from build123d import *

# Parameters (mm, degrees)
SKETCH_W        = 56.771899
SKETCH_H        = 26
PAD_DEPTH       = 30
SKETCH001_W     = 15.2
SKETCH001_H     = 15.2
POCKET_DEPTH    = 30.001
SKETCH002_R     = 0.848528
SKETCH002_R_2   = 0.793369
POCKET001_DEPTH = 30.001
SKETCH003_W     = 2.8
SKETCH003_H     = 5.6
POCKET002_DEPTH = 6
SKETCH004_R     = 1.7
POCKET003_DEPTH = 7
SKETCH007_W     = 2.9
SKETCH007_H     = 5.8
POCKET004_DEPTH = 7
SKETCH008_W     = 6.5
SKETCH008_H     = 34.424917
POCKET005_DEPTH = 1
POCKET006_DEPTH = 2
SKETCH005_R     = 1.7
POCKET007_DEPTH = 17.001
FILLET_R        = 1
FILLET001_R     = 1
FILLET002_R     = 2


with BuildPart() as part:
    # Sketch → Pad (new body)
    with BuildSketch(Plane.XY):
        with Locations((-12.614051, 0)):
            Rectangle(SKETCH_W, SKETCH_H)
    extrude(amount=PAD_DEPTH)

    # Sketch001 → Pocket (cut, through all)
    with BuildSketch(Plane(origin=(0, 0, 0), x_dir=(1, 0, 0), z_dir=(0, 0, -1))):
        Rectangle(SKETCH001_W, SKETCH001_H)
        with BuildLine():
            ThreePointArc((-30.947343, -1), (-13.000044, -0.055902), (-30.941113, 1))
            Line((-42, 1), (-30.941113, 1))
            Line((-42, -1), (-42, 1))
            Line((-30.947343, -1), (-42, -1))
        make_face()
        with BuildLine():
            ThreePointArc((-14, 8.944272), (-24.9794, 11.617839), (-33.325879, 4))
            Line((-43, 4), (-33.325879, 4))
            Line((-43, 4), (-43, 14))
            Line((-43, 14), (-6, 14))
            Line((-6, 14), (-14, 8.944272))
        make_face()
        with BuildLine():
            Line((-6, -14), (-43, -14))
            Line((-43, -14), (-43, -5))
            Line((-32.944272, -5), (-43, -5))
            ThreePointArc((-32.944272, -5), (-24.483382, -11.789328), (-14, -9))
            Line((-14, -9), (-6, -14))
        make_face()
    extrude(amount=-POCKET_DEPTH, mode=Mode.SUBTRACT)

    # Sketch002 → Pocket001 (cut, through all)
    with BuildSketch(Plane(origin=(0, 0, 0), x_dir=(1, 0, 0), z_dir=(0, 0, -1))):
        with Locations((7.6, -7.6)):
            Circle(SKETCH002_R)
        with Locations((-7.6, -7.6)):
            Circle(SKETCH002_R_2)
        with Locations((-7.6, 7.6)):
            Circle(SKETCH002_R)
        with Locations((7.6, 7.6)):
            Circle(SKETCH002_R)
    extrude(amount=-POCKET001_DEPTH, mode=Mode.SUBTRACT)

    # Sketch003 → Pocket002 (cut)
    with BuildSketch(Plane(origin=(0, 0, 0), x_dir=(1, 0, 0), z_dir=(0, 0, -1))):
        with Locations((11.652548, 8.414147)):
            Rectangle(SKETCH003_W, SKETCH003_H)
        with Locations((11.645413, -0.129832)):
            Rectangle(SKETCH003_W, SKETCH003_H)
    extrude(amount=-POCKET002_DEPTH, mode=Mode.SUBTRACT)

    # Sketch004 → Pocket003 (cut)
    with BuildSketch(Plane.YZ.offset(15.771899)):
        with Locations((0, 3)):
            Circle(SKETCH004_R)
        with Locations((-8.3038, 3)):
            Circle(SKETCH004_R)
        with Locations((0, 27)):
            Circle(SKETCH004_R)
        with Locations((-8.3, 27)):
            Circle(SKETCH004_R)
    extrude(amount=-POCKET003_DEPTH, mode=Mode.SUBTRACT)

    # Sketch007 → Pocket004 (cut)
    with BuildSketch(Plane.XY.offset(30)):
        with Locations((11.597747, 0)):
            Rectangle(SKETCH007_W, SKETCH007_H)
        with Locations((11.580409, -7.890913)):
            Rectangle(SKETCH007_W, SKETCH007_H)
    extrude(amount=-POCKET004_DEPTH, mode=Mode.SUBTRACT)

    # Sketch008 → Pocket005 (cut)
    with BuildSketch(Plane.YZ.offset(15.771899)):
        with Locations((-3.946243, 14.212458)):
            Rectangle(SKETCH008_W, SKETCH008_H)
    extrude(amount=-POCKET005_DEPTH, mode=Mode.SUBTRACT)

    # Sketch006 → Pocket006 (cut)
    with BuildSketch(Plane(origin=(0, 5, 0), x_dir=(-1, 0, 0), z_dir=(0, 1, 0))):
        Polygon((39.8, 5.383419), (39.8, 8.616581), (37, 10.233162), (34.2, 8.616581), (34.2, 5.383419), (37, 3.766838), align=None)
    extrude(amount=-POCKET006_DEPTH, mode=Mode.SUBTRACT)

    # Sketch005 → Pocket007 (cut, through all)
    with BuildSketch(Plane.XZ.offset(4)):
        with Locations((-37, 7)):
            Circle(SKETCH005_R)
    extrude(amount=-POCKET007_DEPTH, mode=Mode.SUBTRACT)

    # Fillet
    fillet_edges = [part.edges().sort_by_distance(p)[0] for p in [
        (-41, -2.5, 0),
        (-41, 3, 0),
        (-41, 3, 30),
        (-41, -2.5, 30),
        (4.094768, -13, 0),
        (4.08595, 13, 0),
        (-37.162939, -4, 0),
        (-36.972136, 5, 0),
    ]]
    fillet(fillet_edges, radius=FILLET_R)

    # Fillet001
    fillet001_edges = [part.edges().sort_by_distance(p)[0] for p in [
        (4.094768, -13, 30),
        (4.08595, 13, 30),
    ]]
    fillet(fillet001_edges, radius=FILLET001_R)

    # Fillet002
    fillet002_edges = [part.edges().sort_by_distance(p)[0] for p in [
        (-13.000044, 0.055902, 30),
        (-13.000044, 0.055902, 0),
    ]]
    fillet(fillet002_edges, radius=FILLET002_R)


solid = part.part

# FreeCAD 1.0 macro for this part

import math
import FreeCAD as App
import Part
import Sketcher
Q = App.Units.Quantity


def edges_at(feature, points):
    """Names of the edges that pass closest to the given points."""
    edges = feature.Shape.Edges
    near = lambda p: min(range(len(edges)), key=lambda i: edges[i].distToShape(Part.Vertex(*p))[0])
    return sorted({f"Edge{near(p) + 1}" for p in points})


def add_polygon(sketch, points):
    """Adds a closed chain of lines whose ends are joined by coincident constraints."""
    first, n = sketch.GeometryCount, len(points)
    for a, b in zip(points, points[1:] + points[:1]):
        sketch.addGeometry(Part.LineSegment(App.Vector(*a, 0), App.Vector(*b, 0)), False)
    for i in range(n):
        sketch.addConstraint(Sketcher.Constraint("Coincident", first + i, 2, first + (i + 1) % n, 1))

doc = App.newDocument("Part")
params = doc.addObject("Spreadsheet::Sheet", "Params")
for row, (alias, value) in enumerate([
    ("sketch1_height", "26 mm"),
    ("pad1_length", "30 mm"),
    ("sketch2_radius", "9 mm"),
    ("sketch2_width", "37 mm"),
    ("sketch2_height", "2 mm"),
    ("sketch2_height2", "10 mm"),
    ("sketch2_height3", "9 mm"),
    ("sketch4_width", "2.8 mm"),
    ("sketch4_height", "5.6 mm"),
    ("pocket3_length", "6 mm"),
    ("sketch5_diameter", "3.4 mm"),
    ("pocket4_length", "7 mm"),
    ("sketch6_width", "2.9 mm"),
    ("sketch6_height", "5.8 mm"),
    ("pocket5_length", "7 mm"),
    ("sketch7_width", "6.5 mm"),
    ("pocket6_length", "1 mm"),
    ("pocket7_length", "2 mm"),
    ("sketch9_diameter", "3.4 mm"),
    ("fillet_radius", "1 mm"),
    ("fillet2_radius", "1 mm"),
    ("fillet3_radius", "2 mm"),
], start=1):
    params.set(f"A{row}", alias)
    params.set(f"B{row}", "=" + value)
    params.setAlias(f"B{row}", alias)

body = doc.addObject("PartDesign::Body", "Body")

sketch1 = doc.addObject("Sketcher::SketchObject", "Sketch")
body.addObject(sketch1)
sketch1.AttachmentSupport = (doc.XY_Plane, [""])
sketch1.MapMode = "FlatFace"
add_polygon(sketch1, [(-41, 13), (-41, -13), (15.771899, -13), (15.771899, 13)])
sketch1.addConstraint([
    Sketcher.Constraint("Vertical", 0),
    Sketcher.Constraint("Horizontal", 1),
    Sketcher.Constraint("Vertical", 2),
    Sketcher.Constraint("Horizontal", 3),
    Sketcher.Constraint("DistanceY", 0, 2, 0, 1, 26.0),
    Sketcher.Constraint("DistanceX", 0, 2, -1, 1, 41.0),
    Sketcher.Constraint("DistanceY", 0, 2, -1, 1, 13.0),
    Sketcher.Constraint("DistanceX", 1, 1, 1, 2, 56.771899),
])
sketch1.setExpression("Constraints[8]", "Params.sketch1_height")
pad1 = doc.addObject("PartDesign::Pad", "Pad")
body.addObject(pad1)
pad1.Profile = sketch1
pad1.setExpression("Length", "Params.pad1_length")

sketch2 = doc.addObject("Sketcher::SketchObject", "Sketch001")
body.addObject(sketch2)
sketch2.AttachmentSupport = (doc.XY_Plane, [""])
sketch2.MapMode = "FlatFace"
add_polygon(sketch2, [(-7.6, -7.6), (-7.6, 7.6), (7.6, 7.6), (7.6, -7.6)])
sketch2.addGeometry(Part.ArcOfCircle(Part.Circle(App.Vector(-22, 0.027861, 0), App.Vector(0, 0, 1), 9), math.radians(-173.442123), math.radians(173.799074)), False)
sketch2.addGeometry(Part.LineSegment(App.Vector(-30.941113, -1, 0), App.Vector(-42, -1, 0)), False)
sketch2.addGeometry(Part.LineSegment(App.Vector(-42, -1, 0), App.Vector(-42, 1, 0)), False)
sketch2.addGeometry(Part.LineSegment(App.Vector(-42, 1, 0), App.Vector(-30.947343, 1, 0)), False)
sketch2.addGeometry(Part.ArcOfCircle(Part.Circle(App.Vector(-22, 0.027864, 0), App.Vector(0, 0, 1), 12.020783), math.radians(-160.4229), math.radians(-48.278226)), False)
sketch2.addGeometry(Part.LineSegment(App.Vector(-14, -8.944272, 0), App.Vector(-6, -14, 0)), False)
sketch2.addGeometry(Part.LineSegment(App.Vector(-6, -14, 0), App.Vector(-43, -14, 0)), False)
sketch2.addGeometry(Part.LineSegment(App.Vector(-43, -14, 0), App.Vector(-43, -4, 0)), False)
sketch2.addGeometry(Part.LineSegment(App.Vector(-43, -4, 0), App.Vector(-33.325879, -4, 0)), False)
sketch2.addGeometry(Part.LineSegment(App.Vector(-43, 14, 0), App.Vector(-6, 14, 0)), False)
sketch2.addGeometry(Part.LineSegment(App.Vector(-6, 14, 0), App.Vector(-14, 9, 0)), False)
sketch2.addGeometry(Part.ArcOfCircle(Part.Circle(App.Vector(-22, 0.027864, 0), App.Vector(0, 0, 1), 12.020783), math.radians(48.278227), math.radians(155.567035)), False)
sketch2.addGeometry(Part.LineSegment(App.Vector(-32.944272, 5, 0), App.Vector(-43, 5, 0)), False)
sketch2.addGeometry(Part.LineSegment(App.Vector(-43, 5, 0), App.Vector(-43, 14, 0)), False)
sketch2.addConstraint([
    Sketcher.Constraint("Coincident", 4, 1, 5, 1),
    Sketcher.Constraint("Coincident", 5, 2, 6, 1),
    Sketcher.Constraint("Coincident", 6, 2, 7, 1),
    Sketcher.Constraint("Coincident", 7, 2, 4, 2),
    Sketcher.Constraint("Coincident", 8, 2, 9, 1),
    Sketcher.Constraint("Coincident", 9, 2, 10, 1),
    Sketcher.Constraint("Coincident", 10, 2, 11, 1),
    Sketcher.Constraint("Coincident", 11, 2, 12, 1),
    Sketcher.Constraint("Coincident", 12, 2, 8, 1),
    Sketcher.Constraint("Coincident", 13, 2, 14, 1),
    Sketcher.Constraint("Coincident", 14, 2, 15, 1),
    Sketcher.Constraint("Coincident", 15, 2, 16, 1),
    Sketcher.Constraint("Coincident", 16, 2, 17, 1),
    Sketcher.Constraint("Coincident", 17, 2, 13, 1),
    Sketcher.Constraint("Vertical", 0),
    Sketcher.Constraint("Horizontal", 1),
    Sketcher.Constraint("Vertical", 2),
    Sketcher.Constraint("Horizontal", 3),
    Sketcher.Constraint("Horizontal", 5),
    Sketcher.Constraint("Vertical", 6),
    Sketcher.Constraint("Horizontal", 7),
    Sketcher.Constraint("Horizontal", 10),
    Sketcher.Constraint("Vertical", 11),
    Sketcher.Constraint("Horizontal", 12),
    Sketcher.Constraint("Horizontal", 13),
    Sketcher.Constraint("Horizontal", 16),
    Sketcher.Constraint("Vertical", 17),
    Sketcher.Constraint("Coincident", 8, 3, 4, 3),
    Sketcher.Constraint("Coincident", 15, 3, 4, 3),
    Sketcher.Constraint("Equal", 8, 15),
    Sketcher.Constraint("Symmetric", 0, 2, 2, 2, -1, 1),
    Sketcher.Constraint("Symmetric", 9, 2, 13, 2, -1),
    Sketcher.Constraint("Vertical", 8, 2, 14, 2),
    Sketcher.Constraint("Vertical", 11, 2, 16, 2),
    Sketcher.Constraint("Equal", 3, 0),
    Sketcher.Constraint("Radius", 4, 9.0),
    Sketcher.Constraint("DistanceX", 10, 2, 10, 1, 37.0),
    Sketcher.Constraint("DistanceY", 6, 1, 6, 2, 2.0),
    Sketcher.Constraint("DistanceY", 11, 1, 11, 2, 10.0),
    Sketcher.Constraint("DistanceY", 17, 1, 17, 2, 9.0),
    Sketcher.Constraint("DistanceX", 1, 1, 1, 2, 15.2),
    Sketcher.Constraint("DistanceX", 4, 3, -1, 1, 22.0),
    Sketcher.Constraint("DistanceY", 4, 1, -1, 1, 1.0),
    Sketcher.Constraint("DistanceX", 5, 2, -1, 1, 42.0),
    Sketcher.Constraint("DistanceX", 8, 2, -1, 1, 14.0),
    Sketcher.Constraint("DistanceX", 9, 2, -1, 1, 6.0),
    Sketcher.Constraint("DistanceY", 9, 2, -1, 1, 14.0),
    Sketcher.Constraint("DistanceY", -1, 1, 14, 2, 9.0),
    Sketcher.Constraint("Radius", 8, 12.020783),
])
sketch2.setExpression("Constraints[39]", "Params.sketch2_radius")
sketch2.setExpression("Constraints[40]", "Params.sketch2_width")
sketch2.setExpression("Constraints[41]", "Params.sketch2_height")
sketch2.setExpression("Constraints[42]", "Params.sketch2_height2")
sketch2.setExpression("Constraints[43]", "Params.sketch2_height3")
pocket1 = doc.addObject("PartDesign::Pocket", "Pocket")
body.addObject(pocket1)
pocket1.Profile = sketch2
pocket1.Type = "ThroughAll"
pocket1.Reversed = True

sketch3 = doc.addObject("Sketcher::SketchObject", "Sketch002")
body.addObject(sketch3)
sketch3.AttachmentSupport = (doc.XY_Plane, [""])
sketch3.MapMode = "FlatFace"
sketch3.addGeometry([
    Part.Circle(App.Vector(7.6, 7.6, 0), App.Vector(0, 0, 1), 0.848528),
    Part.Circle(App.Vector(-7.6, 7.6, 0), App.Vector(0, 0, 1), 0.793369),
    Part.Circle(App.Vector(-7.6, -7.6, 0), App.Vector(0, 0, 1), 0.848528),
    Part.Circle(App.Vector(7.6, -7.6, 0), App.Vector(0, 0, 1), 0.848528),
], False)
sketch3.addConstraint([
    Sketcher.Constraint("Equal", 0, 2),
    Sketcher.Constraint("Equal", 2, 3),
    Sketcher.Constraint("Symmetric", 0, 3, 2, 3, -1, 1),
    Sketcher.Constraint("Symmetric", 1, 3, 3, 3, -1, 1),
    Sketcher.Constraint("Symmetric", 0, 3, 1, 3, -2),
    Sketcher.Constraint("DistanceX", -1, 1, 0, 3, 7.6),
    Sketcher.Constraint("DistanceY", -1, 1, 0, 3, 7.6),
    Sketcher.Constraint("Diameter", 0, 1.697056),
    Sketcher.Constraint("Diameter", 1, 1.586738),
])
pocket2 = doc.addObject("PartDesign::Pocket", "Pocket001")
body.addObject(pocket2)
pocket2.Profile = sketch3
pocket2.Type = "ThroughAll"
pocket2.Reversed = True

sketch4 = doc.addObject("Sketcher::SketchObject", "Sketch003")
body.addObject(sketch4)
sketch4.AttachmentSupport = (doc.XY_Plane, [""])
sketch4.MapMode = "FlatFace"
add_polygon(sketch4, [(10.252548, -11.214147), (10.252548, -5.614147), (13.052548, -5.614147), (13.052548, -11.214147)])
add_polygon(sketch4, [(10.245413, -2.670168), (10.245413, 2.929832), (13.045413, 2.929832), (13.045413, -2.670168)])
sketch4.addConstraint([
    Sketcher.Constraint("Vertical", 0),
    Sketcher.Constraint("Horizontal", 1),
    Sketcher.Constraint("Vertical", 2),
    Sketcher.Constraint("Horizontal", 3),
    Sketcher.Constraint("Vertical", 4),
    Sketcher.Constraint("Horizontal", 5),
    Sketcher.Constraint("Vertical", 6),
    Sketcher.Constraint("Horizontal", 7),
    Sketcher.Constraint("Equal", 3, 5),
    Sketcher.Constraint("Equal", 2, 4),
    Sketcher.Constraint("DistanceX", 1, 1, 1, 2, 2.8),
    Sketcher.Constraint("DistanceY", 0, 1, 0, 2, 5.6),
    Sketcher.Constraint("DistanceX", -1, 1, 0, 2, 10.252548),
    Sketcher.Constraint("DistanceY", 0, 2, 4, 2, 8.543979),
    Sketcher.Constraint("DistanceY", 0, 2, -1, 1, 5.614147),
    Sketcher.Constraint("DistanceX", -1, 1, 4, 2, 10.245413),
])
sketch4.setExpression("Constraints[18]", "Params.sketch4_width")
sketch4.setExpression("Constraints[19]", "Params.sketch4_height")
pocket3 = doc.addObject("PartDesign::Pocket", "Pocket002")
body.addObject(pocket3)
pocket3.Profile = sketch4
pocket3.setExpression("Length", "Params.pocket3_length")
pocket3.Reversed = True

sketch5 = doc.addObject("Sketcher::SketchObject", "Sketch004")
body.addObject(sketch5)
sketch5.AttachmentSupport = (doc.YZ_Plane, [""])
sketch5.MapMode = "FlatFace"
sketch5.AttachmentOffset = App.Placement(App.Vector(0, 0, 15.771899), App.Rotation())
sketch5.addGeometry([
    Part.Circle(App.Vector(0, 3, 0), App.Vector(0, 0, 1), 1.7),
    Part.Circle(App.Vector(-8.3038, 3, 0), App.Vector(0, 0, 1), 1.7),
    Part.Circle(App.Vector(0, 27, 0), App.Vector(0, 0, 1), 1.7),
    Part.Circle(App.Vector(-8.3, 27, 0), App.Vector(0, 0, 1), 1.7),
], False)
sketch5.addConstraint([
    Sketcher.Constraint("Equal", 0, 1),
    Sketcher.Constraint("Equal", 1, 2),
    Sketcher.Constraint("Equal", 2, 3),
    Sketcher.Constraint("PointOnObject", 0, 3, -2),
    Sketcher.Constraint("PointOnObject", 2, 3, -2),
    Sketcher.Constraint("Horizontal", 0, 3, 1, 3),
    Sketcher.Constraint("Horizontal", 2, 3, 3, 3),
    Sketcher.Constraint("Diameter", 0, 3.4),
    Sketcher.Constraint("DistanceY", -1, 1, 0, 3, 3.0),
    Sketcher.Constraint("DistanceY", -1, 1, 2, 3, 27.0),
    Sketcher.Constraint("DistanceX", 3, 3, -1, 1, 8.3),
    Sketcher.Constraint("DistanceX", 1, 3, -1, 1, 8.3038),
])
sketch5.setExpression("Constraints[7]", "Params.sketch5_diameter")
pocket4 = doc.addObject("PartDesign::Pocket", "Pocket003")
body.addObject(pocket4)
pocket4.Profile = sketch5
pocket4.setExpression("Length", "Params.pocket4_length")

sketch6 = doc.addObject("Sketcher::SketchObject", "Sketch005")
body.addObject(sketch6)
sketch6.AttachmentSupport = (doc.XY_Plane, [""])
sketch6.MapMode = "FlatFace"
sketch6.AttachmentOffset = App.Placement(App.Vector(0, 0, 30), App.Rotation())
add_polygon(sketch6, [(10.147747, 2.9), (10.147747, -2.9), (13.047747, -2.9), (13.047747, 2.9)])
add_polygon(sketch6, [(10.130409, -4.990913), (10.130409, -10.790913), (13.030409, -10.790913), (13.030409, -4.990913)])
sketch6.addConstraint([
    Sketcher.Constraint("Vertical", 0),
    Sketcher.Constraint("Horizontal", 1),
    Sketcher.Constraint("Vertical", 2),
    Sketcher.Constraint("Horizontal", 3),
    Sketcher.Constraint("Vertical", 4),
    Sketcher.Constraint("Horizontal", 5),
    Sketcher.Constraint("Vertical", 6),
    Sketcher.Constraint("Horizontal", 7),
    Sketcher.Constraint("Equal", 3, 5),
    Sketcher.Constraint("Equal", 2, 4),
    Sketcher.Constraint("DistanceX", 1, 1, 1, 2, 2.9),
    Sketcher.Constraint("DistanceY", 0, 2, 0, 1, 5.8),
    Sketcher.Constraint("DistanceY", 0, 2, -1, 1, 2.9),
    Sketcher.Constraint("DistanceX", -1, 1, 4, 2, 10.130409),
    Sketcher.Constraint("DistanceX", 4, 2, 0, 2, 0.017338),
    Sketcher.Constraint("DistanceY", 4, 2, -1, 1, 10.790913),
])
sketch6.setExpression("Constraints[18]", "Params.sketch6_width")
sketch6.setExpression("Constraints[19]", "Params.sketch6_height")
pocket5 = doc.addObject("PartDesign::Pocket", "Pocket004")
body.addObject(pocket5)
pocket5.Profile = sketch6
pocket5.setExpression("Length", "Params.pocket5_length")

sketch7 = doc.addObject("Sketcher::SketchObject", "Sketch006")
body.addObject(sketch7)
sketch7.AttachmentSupport = (doc.YZ_Plane, [""])
sketch7.MapMode = "FlatFace"
sketch7.AttachmentOffset = App.Placement(App.Vector(0, 0, 15.771899), App.Rotation())
add_polygon(sketch7, [(-7.196243, 31.424916), (-7.196243, -3.000001), (-0.696243, -3.000001), (-0.696243, 31.424916)])
sketch7.addConstraint([
    Sketcher.Constraint("Vertical", 0),
    Sketcher.Constraint("Horizontal", 1),
    Sketcher.Constraint("Vertical", 2),
    Sketcher.Constraint("Horizontal", 3),
    Sketcher.Constraint("DistanceX", 1, 1, 1, 2, 6.5),
    Sketcher.Constraint("DistanceY", 0, 2, -1, 1, 3.000001),
    Sketcher.Constraint("DistanceY", 0, 2, 0, 1, 34.424917),
    Sketcher.Constraint("DistanceX", 0, 2, -1, 1, 7.196243),
])
sketch7.setExpression("Constraints[8]", "Params.sketch7_width")
pocket6 = doc.addObject("PartDesign::Pocket", "Pocket005")
body.addObject(pocket6)
pocket6.Profile = sketch7
pocket6.setExpression("Length", "Params.pocket6_length")

sketch8 = doc.addObject("Sketcher::SketchObject", "Sketch007")
body.addObject(sketch8)
sketch8.AttachmentSupport = (doc.XZ_Plane, [""])
sketch8.MapMode = "FlatFace"
sketch8.AttachmentOffset = App.Placement(App.Vector(0, 0, -5), App.Rotation())
add_polygon(sketch8, [(-39.8, 5.383419), (-39.8, 8.616581), (-37, 10.233162), (-34.2, 8.616581), (-34.2, 5.383419), (-37, 3.766838)])
sketch8.addConstraint([
    Sketcher.Constraint("Vertical", 0),
    Sketcher.Constraint("Vertical", 3),
    Sketcher.Constraint("Parallel", 1, 4),
    Sketcher.Constraint("Parallel", 2, 5),
    Sketcher.Constraint("Horizontal", 0, 2, 2, 2),
    Sketcher.Constraint("Horizontal", 3, 2, 5, 2),
    Sketcher.Constraint("Vertical", 1, 2, 4, 2),
    Sketcher.Constraint("Angle", 1, Q("30.000004 deg")),
    Sketcher.Constraint("DistanceX", 1, 2, -1, 1, 37.0),
    Sketcher.Constraint("DistanceX", 0, 2, -1, 1, 39.8),
    Sketcher.Constraint("DistanceY", 0, 1, 0, 2, 3.233162),
    Sketcher.Constraint("DistanceY", -1, 1, 0, 2, 8.616581),
])
pocket7 = doc.addObject("PartDesign::Pocket", "Pocket006")
body.addObject(pocket7)
pocket7.Profile = sketch8
pocket7.setExpression("Length", "Params.pocket7_length")
pocket7.Reversed = True

sketch9 = doc.addObject("Sketcher::SketchObject", "Sketch008")
body.addObject(sketch9)
sketch9.AttachmentSupport = (doc.XZ_Plane, [""])
sketch9.MapMode = "FlatFace"
sketch9.AttachmentOffset = App.Placement(App.Vector(0, 0, 4), App.Rotation())
sketch9.addGeometry(Part.Circle(App.Vector(-37, 7, 0), App.Vector(0, 0, 1), 1.7), False)
sketch9.addConstraint([
    Sketcher.Constraint("Diameter", 0, 3.4),
    Sketcher.Constraint("DistanceX", 0, 3, -1, 1, 37.0),
    Sketcher.Constraint("DistanceY", -1, 1, 0, 3, 7.0),
])
sketch9.setExpression("Constraints[0]", "Params.sketch9_diameter")
pocket8 = doc.addObject("PartDesign::Pocket", "Pocket007")
body.addObject(pocket8)
pocket8.Profile = sketch9
pocket8.Type = "ThroughAll"
doc.recompute()

fillet = doc.addObject("PartDesign::Fillet", "Fillet")
body.addObject(fillet)
fillet.Base = (pocket8, edges_at(pocket8, [
    (-41, -2.5, 0),
    (-41, 3, 0),
    (-41, 3, 30),
    (-41, -2.5, 30),
    (4.095, -13, 0),
    (4.086, 13, 0),
    (-37.163, -4, 0),
    (-36.972, 5, 0),
]))
fillet.setExpression("Radius", "Params.fillet_radius")
doc.recompute()

fillet2 = doc.addObject("PartDesign::Fillet", "Fillet001")
body.addObject(fillet2)
fillet2.Base = (fillet, edges_at(fillet, [(4.095, -13, 30), (4.086, 13, 30)]))
fillet2.setExpression("Radius", "Params.fillet2_radius")
doc.recompute()

fillet3 = doc.addObject("PartDesign::Fillet", "Fillet002")
body.addObject(fillet3)
fillet3.Base = (fillet2, edges_at(fillet2, [(-13, 0.056, 30), (-13, 0.056, 0)]))
fillet3.setExpression("Radius", "Params.fillet3_radius")

doc.recompute()
